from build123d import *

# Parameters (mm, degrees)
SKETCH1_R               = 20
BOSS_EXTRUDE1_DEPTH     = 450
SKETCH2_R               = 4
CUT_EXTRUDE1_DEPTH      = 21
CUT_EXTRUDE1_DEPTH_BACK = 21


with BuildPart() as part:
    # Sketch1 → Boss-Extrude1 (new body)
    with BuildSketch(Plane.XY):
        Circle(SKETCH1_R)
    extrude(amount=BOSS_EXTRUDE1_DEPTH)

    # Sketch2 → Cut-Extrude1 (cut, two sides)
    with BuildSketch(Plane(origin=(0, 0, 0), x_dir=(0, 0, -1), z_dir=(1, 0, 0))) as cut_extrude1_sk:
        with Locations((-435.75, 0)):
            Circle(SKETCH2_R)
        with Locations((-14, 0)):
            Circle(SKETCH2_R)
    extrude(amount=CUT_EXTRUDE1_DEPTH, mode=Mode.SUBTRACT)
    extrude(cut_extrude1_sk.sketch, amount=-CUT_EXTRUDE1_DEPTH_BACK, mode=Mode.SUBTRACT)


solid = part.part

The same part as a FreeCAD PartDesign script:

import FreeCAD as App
import Part
import Sketcher

V = App.Vector

doc = App.newDocument("Part")
params = doc.addObject("Spreadsheet::Sheet", "Params")
for row, (alias, value) in enumerate([
    ("sketch1_diameter", "40 mm"),
    ("pad1_length", "450 mm"),
    ("sketch2_diameter", "8 mm"),
], start=1):
    params.set(f"A{row}", alias)
    params.set(f"B{row}", "=" + value)
    params.setAlias(f"B{row}", alias)

body = doc.addObject("PartDesign::Body", "Body")

sketch1 = body.newObject("Sketcher::SketchObject", "Sketch")
sketch1.AttachmentSupport = (doc.getObject("XY_Plane"), [""])
sketch1.MapMode = "FlatFace"
sketch1.addGeometry(Part.Circle(V(0, 0, 0), V(0, 0, 1), 20), False)
sketch1.addConstraint(Sketcher.Constraint("Coincident", 0, 3, -1, 1))
sketch1.addConstraint(Sketcher.Constraint("Diameter", 0, 40.0))
sketch1.setExpression("Constraints[1]", "Params.sketch1_diameter")
pad1 = body.newObject("PartDesign::Pad", "Pad")
pad1.Profile = sketch1
pad1.setExpression("Length", "Params.pad1_length")

sketch2 = body.newObject("Sketcher::SketchObject", "Sketch001")
sketch2.AttachmentSupport = (doc.getObject("YZ_Plane"), [""])
sketch2.MapMode = "FlatFace"
sketch2.addGeometry(Part.Circle(V(0, 435.8, 0), V(0, 0, 1), 4), False)
sketch2.addGeometry(Part.Circle(V(0, 14, 0), V(0, 0, 1), 4), False)
sketch2.addConstraint(Sketcher.Constraint("Equal", 0, 1))
sketch2.addConstraint(Sketcher.Constraint("PointOnObject", 0, 3, -2))
sketch2.addConstraint(Sketcher.Constraint("PointOnObject", 1, 3, -2))
sketch2.addConstraint(Sketcher.Constraint("Diameter", 0, 8.0))
sketch2.addConstraint(Sketcher.Constraint("DistanceY", -1, 1, 1, 3, 14.0))
sketch2.addConstraint(Sketcher.Constraint("DistanceY", -1, 1, 0, 3, 435.75))
sketch2.setExpression("Constraints[3]", "Params.sketch2_diameter")
pocket1 = body.newObject("PartDesign::Pocket", "Pocket")
pocket1.Profile = sketch2
pocket1.Type = "ThroughAll"
pocket1.Midplane = True

doc.recompute()
